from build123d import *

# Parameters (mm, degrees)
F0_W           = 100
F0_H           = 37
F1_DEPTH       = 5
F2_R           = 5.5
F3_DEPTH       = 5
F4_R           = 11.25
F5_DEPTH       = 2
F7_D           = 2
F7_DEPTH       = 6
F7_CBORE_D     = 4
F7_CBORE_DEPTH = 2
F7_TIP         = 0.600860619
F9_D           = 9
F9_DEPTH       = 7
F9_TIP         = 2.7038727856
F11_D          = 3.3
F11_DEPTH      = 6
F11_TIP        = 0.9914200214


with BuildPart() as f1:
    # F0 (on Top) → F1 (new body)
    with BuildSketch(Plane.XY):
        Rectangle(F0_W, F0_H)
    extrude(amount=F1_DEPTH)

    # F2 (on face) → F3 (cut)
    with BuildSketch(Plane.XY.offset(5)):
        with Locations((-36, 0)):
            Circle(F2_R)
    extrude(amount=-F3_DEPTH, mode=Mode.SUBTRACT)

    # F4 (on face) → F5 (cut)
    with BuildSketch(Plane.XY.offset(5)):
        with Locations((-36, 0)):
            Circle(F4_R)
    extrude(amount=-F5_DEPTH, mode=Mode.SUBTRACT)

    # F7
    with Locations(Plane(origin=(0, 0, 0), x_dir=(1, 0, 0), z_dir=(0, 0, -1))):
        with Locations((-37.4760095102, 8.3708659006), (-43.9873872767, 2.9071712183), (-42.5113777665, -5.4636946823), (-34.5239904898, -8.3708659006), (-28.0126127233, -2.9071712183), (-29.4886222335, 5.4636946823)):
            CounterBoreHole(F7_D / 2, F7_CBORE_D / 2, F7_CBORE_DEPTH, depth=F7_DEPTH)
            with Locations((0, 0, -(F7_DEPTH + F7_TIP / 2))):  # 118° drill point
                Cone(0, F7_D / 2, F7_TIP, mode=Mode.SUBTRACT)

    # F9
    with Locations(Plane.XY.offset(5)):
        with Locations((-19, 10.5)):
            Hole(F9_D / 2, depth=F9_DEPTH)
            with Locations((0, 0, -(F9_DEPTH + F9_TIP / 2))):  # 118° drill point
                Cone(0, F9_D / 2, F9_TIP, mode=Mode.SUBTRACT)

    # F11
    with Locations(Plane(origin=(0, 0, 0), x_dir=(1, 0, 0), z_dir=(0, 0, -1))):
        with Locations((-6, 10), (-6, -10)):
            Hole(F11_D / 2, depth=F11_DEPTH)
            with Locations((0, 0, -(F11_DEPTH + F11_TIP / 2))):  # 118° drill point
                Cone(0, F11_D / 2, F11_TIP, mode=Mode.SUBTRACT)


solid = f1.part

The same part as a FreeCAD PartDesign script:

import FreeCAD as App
import Part
import Sketcher
Q = App.Units.Quantity

doc = App.newDocument("Part")
params = doc.addObject("Spreadsheet::Sheet", "Params")
for row, (alias, value) in enumerate([
    ("sketch1_width", "100 mm"),
    ("sketch1_height", "37 mm"),
    ("pad1_length", "5 mm"),
    ("sketch2_diameter", "11 mm"),
    ("pocket1_length", "5 mm"),
    ("sketch3_diameter", "22.5 mm"),
    ("pocket2_length", "2 mm"),
    ("sketch4_diameter", "2 mm"),
    ("hole_diameter", "2 mm"),
    ("hole_depth", "6 mm"),
    ("hole_cbore_diameter", "4 mm"),
    ("hole_cbore_depth", "2 mm"),
    ("sketch5_diameter", "9 mm"),
    ("hole2_diameter", "9 mm"),
    ("hole2_depth", "7 mm"),
    ("sketch6_diameter", "3.3 mm"),
    ("hole3_diameter", "3.3 mm"),
    ("hole3_depth", "6 mm"),
], start=1):
    params.set(f"A{row}", alias)
    params.set(f"B{row}", "=" + value)
    params.setAlias(f"B{row}", alias)

body = doc.addObject("PartDesign::Body", "Body")

sketch1 = doc.addObject("Sketcher::SketchObject", "Sketch")
body.addObject(sketch1)
sketch1.AttachmentSupport = (doc.XY_Plane, [""])
sketch1.MapMode = "FlatFace"
sketch1.addGeometry([
    Part.LineSegment(App.Vector(-50, 18, 0), App.Vector(-50, -18, 0)),
    Part.LineSegment(App.Vector(-50, -18, 0), App.Vector(50, -18, 0)),
    Part.LineSegment(App.Vector(50, -18, 0), App.Vector(50, 18, 0)),
    Part.LineSegment(App.Vector(50, 18, 0), App.Vector(-50, 18, 0)),
], False)
sketch1.addConstraint([
    Sketcher.Constraint("Coincident", 0, 2, 1, 1),
    Sketcher.Constraint("Coincident", 1, 2, 2, 1),
    Sketcher.Constraint("Coincident", 2, 2, 3, 1),
    Sketcher.Constraint("Coincident", 3, 2, 0, 1),
    Sketcher.Constraint("Vertical", 0),
    Sketcher.Constraint("Horizontal", 1),
    Sketcher.Constraint("Vertical", 2),
    Sketcher.Constraint("Horizontal", 3),
    Sketcher.Constraint("Symmetric", 0, 2, 2, 2, -1, 1),
    Sketcher.Constraint("DistanceX", 1, 1, 1, 2, Q("100 mm")),
    Sketcher.Constraint("DistanceY", 0, 2, 0, 1, Q("37 mm")),
])
sketch1.setExpression("Constraints[9]", "Params.sketch1_width")
sketch1.setExpression("Constraints[10]", "Params.sketch1_height")
pad1 = doc.addObject("PartDesign::Pad", "Pad")
body.addObject(pad1)
pad1.Profile = sketch1
pad1.setExpression("Length", "Params.pad1_length")

sketch2 = doc.addObject("Sketcher::SketchObject", "Sketch001")
body.addObject(sketch2)
sketch2.AttachmentSupport = (doc.XY_Plane, [""])
sketch2.MapMode = "FlatFace"
sketch2.AttachmentOffset = App.Placement(App.Vector(0, 0, 5), App.Rotation())
sketch2.addGeometry(Part.Circle(App.Vector(-36, 0, 0), App.Vector(0, 0, 1), 6), False)
sketch2.addConstraint([
    Sketcher.Constraint("PointOnObject", 0, 3, -1),
    Sketcher.Constraint("Diameter", 0, Q("11 mm")),
    Sketcher.Constraint("DistanceX", 0, 3, -1, 1, Q("36 mm")),
])
sketch2.setExpression("Constraints[1]", "Params.sketch2_diameter")
pocket1 = doc.addObject("PartDesign::Pocket", "Pocket")
body.addObject(pocket1)
pocket1.Profile = sketch2
pocket1.setExpression("Length", "Params.pocket1_length")

sketch3 = doc.addObject("Sketcher::SketchObject", "Sketch002")
body.addObject(sketch3)
sketch3.AttachmentSupport = (doc.XY_Plane, [""])
sketch3.MapMode = "FlatFace"
sketch3.AttachmentOffset = App.Placement(App.Vector(0, 0, 5), App.Rotation())
sketch3.addGeometry(Part.Circle(App.Vector(-36, 0, 0), App.Vector(0, 0, 1), 11), False)
sketch3.addConstraint([
    Sketcher.Constraint("PointOnObject", 0, 3, -1),
    Sketcher.Constraint("Diameter", 0, Q("22.5 mm")),
    Sketcher.Constraint("DistanceX", 0, 3, -1, 1, Q("36 mm")),
])
sketch3.setExpression("Constraints[1]", "Params.sketch3_diameter")
pocket2 = doc.addObject("PartDesign::Pocket", "Pocket001")
body.addObject(pocket2)
pocket2.Profile = sketch3
pocket2.setExpression("Length", "Params.pocket2_length")

sketch4 = doc.addObject("Sketcher::SketchObject", "Sketch003")
body.addObject(sketch4)
sketch4.AttachmentSupport = (doc.XY_Plane, [""])
sketch4.MapMode = "FlatFace"
sketch4.addGeometry([
    Part.Circle(App.Vector(-37.5, -8.4, 0), App.Vector(0, 0, 1), 1),
    Part.Circle(App.Vector(-44, -2.9, 0), App.Vector(0, 0, 1), 1),
    Part.Circle(App.Vector(-42.5, 5.5, 0), App.Vector(0, 0, 1), 1),
    Part.Circle(App.Vector(-34.5, 8.4, 0), App.Vector(0, 0, 1), 1),
    Part.Circle(App.Vector(-28, 2.9, 0), App.Vector(0, 0, 1), 1),
    Part.Circle(App.Vector(-29.5, -5.5, 0), App.Vector(0, 0, 1), 1),
], False)
sketch4.addConstraint([
    Sketcher.Constraint("Equal", 0, 1),
    Sketcher.Constraint("Equal", 1, 2),
    Sketcher.Constraint("Equal", 2, 3),
    Sketcher.Constraint("Equal", 3, 4),
    Sketcher.Constraint("Equal", 4, 5),
    Sketcher.Constraint("Diameter", 0, Q("2 mm")),
    Sketcher.Constraint("DistanceX", 0, 3, -1, 1, Q("37.47601 mm")),
    Sketcher.Constraint("DistanceY", 1, 3, -1, 1, Q("2.907171 mm")),
    Sketcher.Constraint("DistanceX", 3, 3, -1, 1, Q("34.52399 mm")),
    Sketcher.Constraint("DistanceY", -1, 1, 4, 3, Q("2.907171 mm")),
    Sketcher.Constraint("DistanceX", 1, 3, 2, 3, Q("1.47601 mm")),
    Sketcher.Constraint("DistanceX", 2, 3, 0, 3, Q("5.035368 mm")),
    Sketcher.Constraint("DistanceY", 0, 3, 2, 3, Q("13.834561 mm")),
    Sketcher.Constraint("DistanceY", 2, 3, 3, 3, Q("2.907171 mm")),
    Sketcher.Constraint("DistanceX", 5, 3, 4, 3, Q("1.47601 mm")),
    Sketcher.Constraint("DistanceY", 0, 3, 5, 3, Q("2.907171 mm")),
    Sketcher.Constraint("DistanceX", 3, 3, 5, 3, Q("5.035368 mm")),
    Sketcher.Constraint("DistanceY", 0, 3, -1, 1, Q("8.370866 mm")),
])
sketch4.setExpression("Constraints[5]", "Params.sketch4_diameter")
doc.recompute()
hole = doc.addObject("PartDesign::Hole", "Hole")
body.addObject(hole)
hole.Profile = sketch4
hole.ThreadType = "None"
hole.setExpression("Diameter", "Params.hole_diameter")
hole.DepthType = "Dimension"
hole.setExpression("Depth", "Params.hole_depth")
hole.DrillPoint = "Angled"
hole.DrillPointAngle = 118
hole.HoleCutType = "Counterbore"
hole.setExpression("HoleCutDiameter", "Params.hole_cbore_diameter")
hole.setExpression("HoleCutDepth", "Params.hole_cbore_depth")
hole.Reversed = True

sketch5 = doc.addObject("Sketcher::SketchObject", "Sketch004")
body.addObject(sketch5)
sketch5.AttachmentSupport = (doc.XY_Plane, [""])
sketch5.MapMode = "FlatFace"
sketch5.AttachmentOffset = App.Placement(App.Vector(0, 0, 5), App.Rotation())
sketch5.addGeometry(Part.Circle(App.Vector(-19, 10.5, 0), App.Vector(0, 0, 1), 4.5), False)
sketch5.addConstraint([
    Sketcher.Constraint("Diameter", 0, Q("9 mm")),
    Sketcher.Constraint("DistanceX", 0, 3, -1, 1, Q("19 mm")),
    Sketcher.Constraint("DistanceY", -1, 1, 0, 3, Q("10.5 mm")),
])
sketch5.setExpression("Constraints[0]", "Params.sketch5_diameter")
doc.recompute()
hole2 = doc.addObject("PartDesign::Hole", "Hole001")
body.addObject(hole2)
hole2.Profile = sketch5
hole2.ThreadType = "None"
hole2.setExpression("Diameter", "Params.hole2_diameter")
hole2.DepthType = "Dimension"
hole2.setExpression("Depth", "Params.hole2_depth")
hole2.DrillPoint = "Angled"
hole2.DrillPointAngle = 118

sketch6 = doc.addObject("Sketcher::SketchObject", "Sketch005")
body.addObject(sketch6)
sketch6.AttachmentSupport = (doc.XY_Plane, [""])
sketch6.MapMode = "FlatFace"
sketch6.addGeometry([
    Part.Circle(App.Vector(-6, -10, 0), App.Vector(0, 0, 1), 1.6),
    Part.Circle(App.Vector(-6, 10, 0), App.Vector(0, 0, 1), 1.6),
], False)
sketch6.addConstraint([
    Sketcher.Constraint("Equal", 0, 1),
    Sketcher.Constraint("Symmetric", 0, 3, 1, 3, -1),
    Sketcher.Constraint("Diameter", 0, Q("3.3 mm")),
    Sketcher.Constraint("DistanceX", 0, 3, -1, 1, Q("6 mm")),
    Sketcher.Constraint("DistanceY", 0, 3, -1, 1, Q("10 mm")),
])
sketch6.setExpression("Constraints[2]", "Params.sketch6_diameter")
doc.recompute()
hole3 = doc.addObject("PartDesign::Hole", "Hole002")
body.addObject(hole3)
hole3.Profile = sketch6
hole3.ThreadType = "None"
hole3.setExpression("Diameter", "Params.hole3_diameter")
hole3.DepthType = "Dimension"
hole3.setExpression("Depth", "Params.hole3_depth")
hole3.DrillPoint = "Angled"
hole3.DrillPointAngle = 118
hole3.Reversed = True

doc.recompute()
